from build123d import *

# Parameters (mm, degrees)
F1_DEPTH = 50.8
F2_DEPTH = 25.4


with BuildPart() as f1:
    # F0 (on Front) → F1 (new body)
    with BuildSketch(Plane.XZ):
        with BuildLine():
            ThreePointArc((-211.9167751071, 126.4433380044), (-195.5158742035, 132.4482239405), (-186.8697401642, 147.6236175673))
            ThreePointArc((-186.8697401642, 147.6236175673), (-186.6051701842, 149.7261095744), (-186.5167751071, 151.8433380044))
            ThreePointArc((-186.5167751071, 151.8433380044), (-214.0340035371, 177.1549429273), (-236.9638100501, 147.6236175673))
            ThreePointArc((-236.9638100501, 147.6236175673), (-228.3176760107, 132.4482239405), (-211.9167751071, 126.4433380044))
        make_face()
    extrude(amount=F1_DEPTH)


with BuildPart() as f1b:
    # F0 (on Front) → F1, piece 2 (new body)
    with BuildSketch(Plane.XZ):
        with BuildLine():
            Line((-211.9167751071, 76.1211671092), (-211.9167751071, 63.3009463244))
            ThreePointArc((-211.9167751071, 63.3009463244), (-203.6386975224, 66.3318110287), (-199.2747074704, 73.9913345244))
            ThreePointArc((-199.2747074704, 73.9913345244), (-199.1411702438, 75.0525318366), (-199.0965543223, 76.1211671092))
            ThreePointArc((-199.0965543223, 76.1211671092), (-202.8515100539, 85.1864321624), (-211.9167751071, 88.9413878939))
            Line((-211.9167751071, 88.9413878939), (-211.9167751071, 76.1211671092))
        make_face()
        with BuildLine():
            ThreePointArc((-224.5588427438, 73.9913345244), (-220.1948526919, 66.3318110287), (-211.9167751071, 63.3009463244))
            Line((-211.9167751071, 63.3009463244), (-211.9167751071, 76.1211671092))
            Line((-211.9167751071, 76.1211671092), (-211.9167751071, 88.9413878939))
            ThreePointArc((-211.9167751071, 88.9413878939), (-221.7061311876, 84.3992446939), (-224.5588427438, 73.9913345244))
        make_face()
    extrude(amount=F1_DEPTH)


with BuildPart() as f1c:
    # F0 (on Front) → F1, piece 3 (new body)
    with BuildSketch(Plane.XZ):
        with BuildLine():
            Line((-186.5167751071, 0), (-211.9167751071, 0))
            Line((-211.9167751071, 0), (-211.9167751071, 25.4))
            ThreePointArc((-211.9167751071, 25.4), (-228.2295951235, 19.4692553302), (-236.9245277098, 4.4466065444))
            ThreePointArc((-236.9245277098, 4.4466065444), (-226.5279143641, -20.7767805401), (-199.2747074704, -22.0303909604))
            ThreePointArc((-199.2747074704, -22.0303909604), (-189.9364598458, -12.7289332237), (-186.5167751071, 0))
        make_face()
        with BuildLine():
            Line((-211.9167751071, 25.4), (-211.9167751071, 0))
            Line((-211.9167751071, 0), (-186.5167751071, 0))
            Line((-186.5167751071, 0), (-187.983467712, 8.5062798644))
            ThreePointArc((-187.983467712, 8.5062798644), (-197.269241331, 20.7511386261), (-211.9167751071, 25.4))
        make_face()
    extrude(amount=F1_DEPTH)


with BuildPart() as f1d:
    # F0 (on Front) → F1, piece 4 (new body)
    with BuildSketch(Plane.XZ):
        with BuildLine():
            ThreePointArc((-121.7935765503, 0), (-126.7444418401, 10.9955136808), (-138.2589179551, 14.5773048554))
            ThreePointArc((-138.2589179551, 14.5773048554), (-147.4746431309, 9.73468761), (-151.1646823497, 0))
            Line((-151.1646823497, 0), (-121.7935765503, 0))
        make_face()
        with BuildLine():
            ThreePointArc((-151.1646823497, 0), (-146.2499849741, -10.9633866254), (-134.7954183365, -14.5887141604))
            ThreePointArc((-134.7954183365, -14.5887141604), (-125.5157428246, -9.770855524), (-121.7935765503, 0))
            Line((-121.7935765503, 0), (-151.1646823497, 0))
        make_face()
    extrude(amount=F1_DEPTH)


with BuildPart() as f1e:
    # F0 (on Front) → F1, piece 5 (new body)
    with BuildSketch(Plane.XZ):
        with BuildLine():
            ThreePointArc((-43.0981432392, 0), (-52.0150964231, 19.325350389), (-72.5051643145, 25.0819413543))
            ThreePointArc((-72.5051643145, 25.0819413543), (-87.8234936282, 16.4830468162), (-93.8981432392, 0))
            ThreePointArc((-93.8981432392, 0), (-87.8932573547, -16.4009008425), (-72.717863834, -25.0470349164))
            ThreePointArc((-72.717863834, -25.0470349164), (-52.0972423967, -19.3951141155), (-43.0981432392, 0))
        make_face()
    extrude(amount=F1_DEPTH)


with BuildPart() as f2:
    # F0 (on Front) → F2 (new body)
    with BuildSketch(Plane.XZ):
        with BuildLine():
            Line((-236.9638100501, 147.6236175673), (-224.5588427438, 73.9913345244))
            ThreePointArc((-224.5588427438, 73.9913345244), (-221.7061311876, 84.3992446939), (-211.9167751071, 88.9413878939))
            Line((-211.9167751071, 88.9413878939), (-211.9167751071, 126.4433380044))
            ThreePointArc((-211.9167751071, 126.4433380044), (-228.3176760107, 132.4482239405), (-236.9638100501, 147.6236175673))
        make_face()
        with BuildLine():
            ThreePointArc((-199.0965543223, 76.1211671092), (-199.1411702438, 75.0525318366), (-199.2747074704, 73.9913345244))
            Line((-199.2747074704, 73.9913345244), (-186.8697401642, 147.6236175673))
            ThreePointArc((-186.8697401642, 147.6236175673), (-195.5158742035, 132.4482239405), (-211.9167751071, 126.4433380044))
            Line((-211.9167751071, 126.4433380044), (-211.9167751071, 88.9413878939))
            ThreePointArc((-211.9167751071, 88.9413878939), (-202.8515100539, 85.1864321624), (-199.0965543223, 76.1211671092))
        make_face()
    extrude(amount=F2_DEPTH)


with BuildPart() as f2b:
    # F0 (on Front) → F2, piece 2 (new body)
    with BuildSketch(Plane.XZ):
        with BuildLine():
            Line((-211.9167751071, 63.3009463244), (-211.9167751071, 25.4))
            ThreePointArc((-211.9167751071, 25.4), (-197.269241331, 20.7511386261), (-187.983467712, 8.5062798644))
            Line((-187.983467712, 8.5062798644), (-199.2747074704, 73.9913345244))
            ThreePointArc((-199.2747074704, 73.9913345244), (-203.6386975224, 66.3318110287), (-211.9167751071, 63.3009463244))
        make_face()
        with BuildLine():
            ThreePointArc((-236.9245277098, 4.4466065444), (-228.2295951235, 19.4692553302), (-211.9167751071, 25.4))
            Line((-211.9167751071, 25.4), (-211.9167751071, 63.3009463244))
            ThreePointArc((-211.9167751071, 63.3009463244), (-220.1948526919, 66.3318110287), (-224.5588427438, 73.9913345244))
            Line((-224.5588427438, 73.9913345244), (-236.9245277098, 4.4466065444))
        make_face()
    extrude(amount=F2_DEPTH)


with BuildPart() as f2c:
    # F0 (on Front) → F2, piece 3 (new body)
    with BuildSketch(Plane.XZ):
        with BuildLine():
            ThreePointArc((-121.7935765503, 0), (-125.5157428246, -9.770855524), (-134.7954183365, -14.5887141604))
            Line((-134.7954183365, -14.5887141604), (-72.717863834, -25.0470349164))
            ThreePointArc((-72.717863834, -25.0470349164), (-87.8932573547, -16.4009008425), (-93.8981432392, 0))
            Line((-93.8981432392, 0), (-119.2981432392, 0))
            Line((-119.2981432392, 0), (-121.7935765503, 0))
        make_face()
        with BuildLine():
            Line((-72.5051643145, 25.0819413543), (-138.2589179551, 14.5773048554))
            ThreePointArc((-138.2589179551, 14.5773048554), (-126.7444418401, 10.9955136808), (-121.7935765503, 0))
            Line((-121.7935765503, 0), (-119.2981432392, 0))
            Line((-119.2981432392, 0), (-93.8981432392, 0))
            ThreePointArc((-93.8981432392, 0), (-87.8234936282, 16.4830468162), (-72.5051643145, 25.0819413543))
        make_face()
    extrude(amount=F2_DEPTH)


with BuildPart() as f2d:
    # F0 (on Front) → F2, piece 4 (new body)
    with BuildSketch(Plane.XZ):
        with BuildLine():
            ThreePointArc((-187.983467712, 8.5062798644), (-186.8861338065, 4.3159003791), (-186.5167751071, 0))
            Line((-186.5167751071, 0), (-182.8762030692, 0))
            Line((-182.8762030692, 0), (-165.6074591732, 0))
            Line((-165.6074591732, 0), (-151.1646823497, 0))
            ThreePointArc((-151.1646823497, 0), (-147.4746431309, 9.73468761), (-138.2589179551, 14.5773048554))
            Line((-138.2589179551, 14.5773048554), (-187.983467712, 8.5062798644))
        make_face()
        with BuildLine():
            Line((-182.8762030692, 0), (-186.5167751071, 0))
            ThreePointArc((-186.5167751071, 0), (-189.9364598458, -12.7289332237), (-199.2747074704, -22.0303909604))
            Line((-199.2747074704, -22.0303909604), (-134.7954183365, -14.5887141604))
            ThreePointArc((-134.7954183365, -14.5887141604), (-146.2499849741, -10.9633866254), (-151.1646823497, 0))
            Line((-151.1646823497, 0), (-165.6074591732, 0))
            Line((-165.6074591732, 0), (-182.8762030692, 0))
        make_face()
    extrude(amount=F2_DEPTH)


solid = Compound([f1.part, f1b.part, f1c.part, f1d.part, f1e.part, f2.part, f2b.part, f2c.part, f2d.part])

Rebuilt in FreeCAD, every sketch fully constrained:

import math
import FreeCAD as App
import Part
import Sketcher
Q = App.Units.Quantity

doc = App.newDocument("Part")
body = doc.addObject("PartDesign::Body", "Body")

# Sketch on XZ plane
sketch1 = body.newObject("Sketcher::SketchObject", "Sketch")
sketch1.AttachmentSupport = (doc.getObject("XZ_Plane"), [""])
sketch1.MapMode = "FlatFace"
sketch1.addGeometry([
    Part.ArcOfCircle(Part.Circle(App.Vector(-211.9, 151.8, 0), App.Vector(0, 0, 1), 25.4), math.radians(-90), math.radians(-10)),
    Part.ArcOfCircle(Part.Circle(App.Vector(-211.9, 151.8, 0), App.Vector(0, 0, 1), 25.4), math.radians(-9.56), math.radians(0)),
    Part.ArcOfCircle(Part.Circle(App.Vector(-211.9, 151.8, 0), App.Vector(0, 0, 1), 25.4), math.radians(0), math.radians(190)),
    Part.ArcOfCircle(Part.Circle(App.Vector(-211.9, 151.8, 0), App.Vector(0, 0, 1), 25.4), math.radians(-170), math.radians(-90)),
], False)
sketch1.addConstraint([
    Sketcher.Constraint("Tangent", 0, 2, 1, 1),
    Sketcher.Constraint("Tangent", 1, 2, 2, 1),
    Sketcher.Constraint("Tangent", 2, 2, 3, 1),
    Sketcher.Constraint("Tangent", 3, 2, 0, 1),
    Sketcher.Constraint("Equal", 0, 1),
    Sketcher.Constraint("Horizontal", 3, 3, 1, 2),
    Sketcher.Constraint("Horizontal", 0, 2, 2, 2),
    Sketcher.Constraint("Vertical", 2, 3, 3, 2),
    Sketcher.Constraint("Radius", 0, Q("1 in")),
    Sketcher.Constraint("DistanceY", -1, 1, 0, 3, Q("151.843338 mm")),
    Sketcher.Constraint("DistanceX", 0, 2, -1, 1, Q("186.86974 mm")),
    Sketcher.Constraint("DistanceX", 2, 2, -1, 1, Q("236.96381 mm")),
])
pad1 = body.newObject("PartDesign::Pad", "Pad")
pad1.Profile = sketch1
pad1.Length = Q("2 in")
body2 = doc.addObject("PartDesign::Body", "Body001")

# Sketch on XZ plane
sketch2 = body2.newObject("Sketcher::SketchObject", "Sketch001")
sketch2.AttachmentSupport = (doc.getObject("XZ_Plane001"), [""])
sketch2.MapMode = "FlatFace"
sketch2.addGeometry([
    Part.ArcOfCircle(Part.Circle(App.Vector(-211.9, 76.1, 0), App.Vector(0, 0, 1), 12.8), math.radians(-90), math.radians(-10)),
    Part.ArcOfCircle(Part.Circle(App.Vector(-211.9, 76.1, 0), App.Vector(0, 0, 1), 12.8), math.radians(-9.56), math.radians(0)),
    Part.ArcOfCircle(Part.Circle(App.Vector(-211.9, 76.1, 0), App.Vector(0, 0, 1), 12.8), math.radians(0), math.radians(90)),
    Part.ArcOfCircle(Part.Circle(App.Vector(-211.9, 76.1, 0), App.Vector(0, 0, 1), 12.8), math.radians(90), math.radians(270)),
], False)
sketch2.addConstraint([
    Sketcher.Constraint("Tangent", 0, 2, 1, 1),
    Sketcher.Constraint("Tangent", 1, 2, 2, 1),
    Sketcher.Constraint("Tangent", 2, 2, 3, 1),
    Sketcher.Constraint("Tangent", 3, 2, 0, 1),
    Sketcher.Constraint("Equal", 0, 1),
    Sketcher.Constraint("Horizontal", 3, 3, 1, 2),
    Sketcher.Constraint("Vertical", 3, 3, 2, 2),
    Sketcher.Constraint("Vertical", 2, 2, 3, 2),
    Sketcher.Constraint("Radius", 0, Q("12.820221 mm")),
    Sketcher.Constraint("DistanceY", 3, 2, 0, 2, Q("10.690388 mm")),
    Sketcher.Constraint("DistanceX", 0, 3, -1, 1, Q("211.916775 mm")),
    Sketcher.Constraint("DistanceY", -1, 1, 0, 3, Q("76.121167 mm")),
])
pad2 = body2.newObject("PartDesign::Pad", "Pad001")
pad2.Profile = sketch2
pad2.Length = Q("2 in")
body3 = doc.addObject("PartDesign::Body", "Body002")

# Sketch on XZ plane
sketch3 = body3.newObject("Sketcher::SketchObject", "Sketch002")
sketch3.AttachmentSupport = (doc.getObject("XZ_Plane002"), [""])
sketch3.MapMode = "FlatFace"
sketch3.addGeometry([
    Part.ArcOfCircle(Part.Circle(App.Vector(-212, 0, 0), App.Vector(0, 0, 1), 25), math.radians(90), math.radians(170)),  # 0
    Part.ArcOfCircle(Part.Circle(App.Vector(-212, 0, 0), App.Vector(0, 0, 1), 25), math.radians(170), math.radians(300)),  # 1
    Part.ArcOfCircle(Part.Circle(App.Vector(-212, 0, 0), App.Vector(0, 0, 1), 25), math.radians(-60), math.radians(0)),  # 2
    Part.LineSegment(App.Vector(-187, 0, 0), App.Vector(-188, 9, 0)),  # 3
    Part.ArcOfCircle(Part.Circle(App.Vector(-212, 0, 0), App.Vector(0, 0, 1), 25), math.radians(20), math.radians(90)),  # 4
], False)
sketch3.addConstraint([
    Sketcher.Constraint("Tangent", 0, 2, 1, 1),
    Sketcher.Constraint("Tangent", 1, 2, 2, 1),
    Sketcher.Constraint("Coincident", 2, 2, 3, 1),
    Sketcher.Constraint("Coincident", 3, 2, 4, 1),
    Sketcher.Constraint("Tangent", 4, 2, 0, 1),
    Sketcher.Constraint("Coincident", 2, 3, 0, 3),
    Sketcher.Constraint("Equal", 2, 4),
    Sketcher.Constraint("PointOnObject", 0, 3, -1),
    Sketcher.Constraint("PointOnObject", 2, 2, -1),
    Sketcher.Constraint("Vertical", 2, 3, 4, 2),
    Sketcher.Constraint("Radius", 0, Q("1 in")),
    Sketcher.Constraint("Distance", 3, Q("8.631801 mm")),
    Sketcher.Constraint("DistanceY", 1, 2, -1, 1, Q("22.030391 mm")),
    Sketcher.Constraint("DistanceX", 0, 2, 1, 2, Q("37.64982 mm")),
    Sketcher.Constraint("DistanceX", 0, 3, -1, 1, Q("211.916775 mm")),
])
pad3 = body3.newObject("PartDesign::Pad", "Pad002")
pad3.Profile = sketch3
pad3.Length = Q("2 in")
body4 = doc.addObject("PartDesign::Body", "Body003")

# Sketch on XZ plane
sketch4 = body4.newObject("Sketcher::SketchObject", "Sketch003")
sketch4.AttachmentSupport = (doc.getObject("XZ_Plane003"), [""])
sketch4.MapMode = "FlatFace"
sketch4.addGeometry([
    Part.ArcOfCircle(Part.Circle(App.Vector(-136, 0, 0), App.Vector(0, 0, 1), 15), math.radians(0), math.radians(97)),
    Part.ArcOfCircle(Part.Circle(App.Vector(-136, 0, 0), App.Vector(0, 0, 1), 15), math.radians(97), math.radians(180)),
    Part.ArcOfCircle(Part.Circle(App.Vector(-136, 0, 0), App.Vector(0, 0, 1), 15), math.radians(180), math.radians(277)),
    Part.ArcOfCircle(Part.Circle(App.Vector(-136, 0, 0), App.Vector(0, 0, 1), 15), math.radians(-83), math.radians(0)),
], False)
sketch4.addConstraint([
    Sketcher.Constraint("Tangent", 0, 2, 1, 1),
    Sketcher.Constraint("Tangent", 1, 2, 2, 1),
    Sketcher.Constraint("Tangent", 2, 2, 3, 1),
    Sketcher.Constraint("Tangent", 3, 2, 0, 1),
    Sketcher.Constraint("Equal", 0, 1),
    Sketcher.Constraint("PointOnObject", 0, 3, -1),
    Sketcher.Constraint("PointOnObject", 1, 2, -1),
    Sketcher.Constraint("PointOnObject", 3, 2, -1),
    Sketcher.Constraint("Radius", 0, Q("14.685553 mm")),
    Sketcher.Constraint("DistanceX", 0, 3, -1, 1, Q("136.479129 mm")),
    Sketcher.Constraint("DistanceX", 2, 2, -1, 1, Q("134.795418 mm")),
    Sketcher.Constraint("DistanceX", 0, 2, 0, 3, Q("1.779789 mm")),
])
pad4 = body4.newObject("PartDesign::Pad", "Pad003")
pad4.Profile = sketch4
pad4.Length = Q("2 in")
body5 = doc.addObject("PartDesign::Body", "Body004")

# Sketch on XZ plane
sketch5 = body5.newObject("Sketcher::SketchObject", "Sketch004")
sketch5.AttachmentSupport = (doc.getObject("XZ_Plane004"), [""])
sketch5.MapMode = "FlatFace"
sketch5.addGeometry([
    Part.ArcOfCircle(Part.Circle(App.Vector(-68, 0, 0), App.Vector(0, 0, 1), 25), math.radians(0), math.radians(99)),
    Part.ArcOfCircle(Part.Circle(App.Vector(-68, 0, 0), App.Vector(0, 0, 1), 25), math.radians(99), math.radians(180)),
    Part.ArcOfCircle(Part.Circle(App.Vector(-68, 0, 0), App.Vector(0, 0, 1), 25), math.radians(180), math.radians(260)),
    Part.ArcOfCircle(Part.Circle(App.Vector(-68, 0, 0), App.Vector(0, 0, 1), 25), math.radians(-100), math.radians(0)),
], False)
sketch5.addConstraint([
    Sketcher.Constraint("Tangent", 0, 2, 1, 1),
    Sketcher.Constraint("Tangent", 1, 2, 2, 1),
    Sketcher.Constraint("Tangent", 2, 2, 3, 1),
    Sketcher.Constraint("Tangent", 3, 2, 0, 1),
    Sketcher.Constraint("Equal", 0, 1),
    Sketcher.Constraint("PointOnObject", 0, 3, -1),
    Sketcher.Constraint("PointOnObject", 1, 2, -1),
    Sketcher.Constraint("PointOnObject", 3, 2, -1),
    Sketcher.Constraint("Radius", 0, Q("1 in")),
    Sketcher.Constraint("DistanceY", -1, 1, 0, 2, Q("25.081941 mm")),
    Sketcher.Constraint("DistanceX", 2, 2, 0, 3, Q("4.219721 mm")),
    Sketcher.Constraint("DistanceX", 0, 3, -1, 1, Q("68.498143 mm")),
])
pad5 = body5.newObject("PartDesign::Pad", "Pad004")
pad5.Profile = sketch5
pad5.Length = Q("2 in")
body6 = doc.addObject("PartDesign::Body", "Body005")

# Sketch on XZ plane
sketch6 = body6.newObject("Sketcher::SketchObject", "Sketch005")
sketch6.AttachmentSupport = (doc.getObject("XZ_Plane005"), [""])
sketch6.MapMode = "FlatFace"
sketch6.addGeometry([
    Part.LineSegment(App.Vector(-237, 147.6, 0), App.Vector(-224.6, 74, 0)),  # 0
    Part.ArcOfCircle(Part.Circle(App.Vector(-211.9, 76.1, 0), App.Vector(0, 0, 1), 12.8), math.radians(90), math.radians(190)),  # 1
    Part.ArcOfCircle(Part.Circle(App.Vector(-211.9, 76.1, 0), App.Vector(0, 0, 1), 12.8), math.radians(0), math.radians(90)),  # 2
    Part.ArcOfCircle(Part.Circle(App.Vector(-211.9, 76.1, 0), App.Vector(0, 0, 1), 12.8), math.radians(-9.56), math.radians(0)),  # 3
    Part.LineSegment(App.Vector(-199.3, 74, 0), App.Vector(-186.9, 147.6, 0)),  # 4
    Part.ArcOfCircle(Part.Circle(App.Vector(-211.9, 151.8, 0), App.Vector(0, 0, 1), 25.4), math.radians(-90), math.radians(-10)),  # 5
    Part.ArcOfCircle(Part.Circle(App.Vector(-211.9, 151.8, 0), App.Vector(0, 0, 1), 25.4), math.radians(-170), math.radians(-90)),  # 6
], False)
sketch6.addConstraint([
    Sketcher.Constraint("Tangent", 0, 2, 1, 2),
    Sketcher.Constraint("Tangent", 1, 1, 2, 2),
    Sketcher.Constraint("Tangent", 2, 1, 3, 2),
    Sketcher.Constraint("Tangent", 3, 1, 4, 1),
    Sketcher.Constraint("Tangent", 4, 2, 5, 2),
    Sketcher.Constraint("Tangent", 5, 1, 6, 2),
    Sketcher.Constraint("Tangent", 6, 1, 0, 1),
    Sketcher.Constraint("Coincident", 3, 3, 1, 3),
    Sketcher.Constraint("Equal", 5, 6),
    Sketcher.Constraint("Horizontal", 3, 3, 2, 1),
    Sketcher.Constraint("Horizontal", 0, 2, 3, 1),
    Sketcher.Constraint("Vertical", 6, 3, 1, 1),
    Sketcher.Constraint("Vertical", 1, 1, 5, 1),
    Sketcher.Constraint("Radius", 5, Q("1 in")),
    Sketcher.Constraint("Radius", 1, Q("12.820221 mm")),
    Sketcher.Constraint("DistanceY", -1, 1, 5, 3, Q("151.843338 mm")),
    Sketcher.Constraint("DistanceX", 4, 2, -1, 1, Q("186.86974 mm")),
    Sketcher.Constraint("DistanceY", 3, 3, 5, 3, Q("75.722171 mm")),
])
pad6 = body6.newObject("PartDesign::Pad", "Pad005")
pad6.Profile = sketch6
pad6.Length = Q("1 in")
body7 = doc.addObject("PartDesign::Body", "Body006")

# Sketch on XZ plane
sketch7 = body7.newObject("Sketcher::SketchObject", "Sketch006")
sketch7.AttachmentSupport = (doc.getObject("XZ_Plane006"), [""])
sketch7.MapMode = "FlatFace"
sketch7.addGeometry([
    Part.ArcOfCircle(Part.Circle(App.Vector(-212, 0, 0), App.Vector(0, 0, 1), 25), math.radians(20), math.radians(90)),  # 0
    Part.LineSegment(App.Vector(-188, 9, 0), App.Vector(-199, 74, 0)),  # 1
    Part.ArcOfCircle(Part.Circle(App.Vector(-212, 76, 0), App.Vector(0, 0, 1), 13), math.radians(-90), math.radians(-10)),  # 2
    Part.ArcOfCircle(Part.Circle(App.Vector(-212, 76, 0), App.Vector(0, 0, 1), 13), math.radians(-170), math.radians(-90)),  # 3
    Part.LineSegment(App.Vector(-225, 74, 0), App.Vector(-237, 4, 0)),  # 4
    Part.ArcOfCircle(Part.Circle(App.Vector(-212, 0, 0), App.Vector(0, 0, 1), 25), math.radians(90), math.radians(170)),  # 5
], False)
sketch7.addConstraint([
    Sketcher.Constraint("Coincident", 0, 1, 1, 1),
    Sketcher.Constraint("Coincident", 1, 2, 2, 2),
    Sketcher.Constraint("Tangent", 2, 1, 3, 2),
    Sketcher.Constraint("Coincident", 3, 1, 4, 1),
    Sketcher.Constraint("Tangent", 4, 2, 5, 2),
    Sketcher.Constraint("Tangent", 5, 1, 0, 2),
    Sketcher.Constraint("Equal", 2, 3),
    Sketcher.Constraint("Equal", 0, 5),
    Sketcher.Constraint("PointOnObject", 0, 3, -1),
    Sketcher.Constraint("Horizontal", 1, 2, 3, 1),
    Sketcher.Constraint("Vertical", 0, 3, 2, 3),
    Sketcher.Constraint("Vertical", 5, 3, 2, 1),
    Sketcher.Constraint("Vertical", 2, 1, 5, 1),
    Sketcher.Constraint("Radius", 0, Q("1 in")),
    Sketcher.Constraint("Radius", 2, Q("12.820221 mm")),
    Sketcher.Constraint("DistanceY", 4, 2, 2, 1, Q("2.3171 in")),
    Sketcher.Constraint("Distance", 1, Q("66.451369 mm")),
    Sketcher.Constraint("Distance", 4, Q("70.635539 mm")),
    Sketcher.Constraint("DistanceX", 0, 3, -1, 1, Q("211.916775 mm")),
])
pad7 = body7.newObject("PartDesign::Pad", "Pad006")
pad7.Profile = sketch7
pad7.Length = Q("1 in")
body8 = doc.addObject("PartDesign::Body", "Body007")

# Sketch on XZ plane
sketch8 = body8.newObject("Sketcher::SketchObject", "Sketch007")
sketch8.AttachmentSupport = (doc.getObject("XZ_Plane007"), [""])
sketch8.MapMode = "FlatFace"
sketch8.addGeometry([
    Part.ArcOfCircle(Part.Circle(App.Vector(-136.479129, 0, 0), App.Vector(0, 0, 1), 14.685553), math.radians(-83.416513), math.radians(0)),  # 0
    Part.LineSegment(App.Vector(-134.795418, -14.588714, 0), App.Vector(-72.717864, -25.047035, 0)),  # 1
    Part.ArcOfCircle(Part.Circle(App.Vector(-68.498143, 0, 0), App.Vector(0, 0, 1), 25.4), math.radians(180), math.radians(260.437073)),  # 2
    Part.ArcOfCircle(Part.Circle(App.Vector(-68.498143, 0, 0), App.Vector(0, 0, 1), 25.4), math.radians(99.076713), math.radians(180)),  # 3
    Part.LineSegment(App.Vector(-72.505164, 25.081941, 0), App.Vector(-138.258918, 14.577305, 0)),  # 4
    Part.ArcOfCircle(Part.Circle(App.Vector(-136.479129, 0, 0), App.Vector(0, 0, 1), 14.685553), math.radians(0), math.radians(96.960968)),  # 5
], False)
sketch8.addConstraint([
    Sketcher.Constraint("Coincident", 0, 1, 1, 1),
    Sketcher.Constraint("Coincident", 1, 2, 2, 2),
    Sketcher.Constraint("Coincident", 2, 1, 3, 2),
    Sketcher.Constraint("Coincident", 3, 1, 4, 1),
    Sketcher.Constraint("Coincident", 4, 2, 5, 2),
    Sketcher.Constraint("Coincident", 5, 1, 0, 2),
    Sketcher.Constraint("Coincident", 3, 3, 2, 3),
    Sketcher.Constraint("Coincident", 5, 3, 0, 3),
    Sketcher.Constraint("PointOnObject", 0, 3, -1),
    Sketcher.Constraint("PointOnObject", 2, 3, -1),
    Sketcher.Constraint("PointOnObject", 2, 1, -1),
    Sketcher.Constraint("PointOnObject", 5, 1, -1),
    Sketcher.Constraint("Radius", 2, Q("1 in")),
    Sketcher.Constraint("Radius", 0, Q("14.685553 mm")),
    Sketcher.Constraint("DistanceX", 1, 2, 3, 1, Q("0.2127 mm")),
    Sketcher.Constraint("DistanceX", 4, 2, 0, 1, Q("3.4635 mm")),
    Sketcher.Constraint("DistanceX", 0, 3, -1, 1, Q("136.479129 mm")),
    Sketcher.Constraint("DistanceX", 0, 1, -1, 1, Q("134.795418 mm")),
    Sketcher.Constraint("DistanceY", -1, 1, 3, 1, Q("25.081941 mm")),
    Sketcher.Constraint("Distance", 1, Q("62.952357 mm")),
])
pad8 = body8.newObject("PartDesign::Pad", "Pad007")
pad8.Profile = sketch8
pad8.Length = Q("1 in")
body9 = doc.addObject("PartDesign::Body", "Body008")

# Sketch on XZ plane
sketch9 = body9.newObject("Sketcher::SketchObject", "Sketch008")
sketch9.AttachmentSupport = (doc.getObject("XZ_Plane008"), [""])
sketch9.MapMode = "FlatFace"
sketch9.addGeometry([
    Part.ArcOfCircle(Part.Circle(App.Vector(-212, 0, 0), App.Vector(0, 0, 1), 25), math.radians(0), math.radians(19.57)),  # 0
    Part.ArcOfCircle(Part.Circle(App.Vector(-212, 0, 0), App.Vector(0, 0, 1), 25), math.radians(-60), math.radians(0)),  # 1
    Part.LineSegment(App.Vector(-199, -22, 0), App.Vector(-135, -15, 0)),  # 2
    Part.ArcOfCircle(Part.Circle(App.Vector(-136, 0, 0), App.Vector(0, 0, 1), 15), math.radians(180), math.radians(277)),  # 3
    Part.ArcOfCircle(Part.Circle(App.Vector(-136, 0, 0), App.Vector(0, 0, 1), 15), math.radians(97), math.radians(180)),  # 4
    Part.LineSegment(App.Vector(-138, 15, 0), App.Vector(-188, 9, 0)),  # 5
], False)
sketch9.addConstraint([
    Sketcher.Constraint("Tangent", 0, 1, 1, 2),
    Sketcher.Constraint("Coincident", 1, 1, 2, 1),
    Sketcher.Constraint("Tangent", 2, 2, 3, 2),
    Sketcher.Constraint("Tangent", 3, 1, 4, 2),
    Sketcher.Constraint("Tangent", 4, 1, 5, 1),
    Sketcher.Constraint("Coincident", 5, 2, 0, 2),
    Sketcher.Constraint("Equal", 0, 1),
    Sketcher.Constraint("Equal", 3, 4),
    Sketcher.Constraint("PointOnObject", 0, 3, -1),
    Sketcher.Constraint("PointOnObject", 3, 3, -1),
    Sketcher.Constraint("PointOnObject", 0, 1, -1),
    Sketcher.Constraint("PointOnObject", 3, 1, -1),
    Sketcher.Constraint("Radius", 0, Q("1 in")),
    Sketcher.Constraint("Radius", 3, Q("14.685553 mm")),
    Sketcher.Constraint("DistanceX", 4, 1, 2, 2, Q("3.4635 mm")),
    Sketcher.Constraint("DistanceX", 3, 3, -1, 1, Q("136.479129 mm")),
    Sketcher.Constraint("DistanceY", 1, 1, -1, 1, Q("22.030391 mm")),
    Sketcher.Constraint("DistanceX", 2, 2, -1, 1, Q("134.795418 mm")),
])
pad9 = body9.newObject("PartDesign::Pad", "Pad008")
pad9.Profile = sketch9
pad9.Length = Q("1 in")

doc.recompute()
